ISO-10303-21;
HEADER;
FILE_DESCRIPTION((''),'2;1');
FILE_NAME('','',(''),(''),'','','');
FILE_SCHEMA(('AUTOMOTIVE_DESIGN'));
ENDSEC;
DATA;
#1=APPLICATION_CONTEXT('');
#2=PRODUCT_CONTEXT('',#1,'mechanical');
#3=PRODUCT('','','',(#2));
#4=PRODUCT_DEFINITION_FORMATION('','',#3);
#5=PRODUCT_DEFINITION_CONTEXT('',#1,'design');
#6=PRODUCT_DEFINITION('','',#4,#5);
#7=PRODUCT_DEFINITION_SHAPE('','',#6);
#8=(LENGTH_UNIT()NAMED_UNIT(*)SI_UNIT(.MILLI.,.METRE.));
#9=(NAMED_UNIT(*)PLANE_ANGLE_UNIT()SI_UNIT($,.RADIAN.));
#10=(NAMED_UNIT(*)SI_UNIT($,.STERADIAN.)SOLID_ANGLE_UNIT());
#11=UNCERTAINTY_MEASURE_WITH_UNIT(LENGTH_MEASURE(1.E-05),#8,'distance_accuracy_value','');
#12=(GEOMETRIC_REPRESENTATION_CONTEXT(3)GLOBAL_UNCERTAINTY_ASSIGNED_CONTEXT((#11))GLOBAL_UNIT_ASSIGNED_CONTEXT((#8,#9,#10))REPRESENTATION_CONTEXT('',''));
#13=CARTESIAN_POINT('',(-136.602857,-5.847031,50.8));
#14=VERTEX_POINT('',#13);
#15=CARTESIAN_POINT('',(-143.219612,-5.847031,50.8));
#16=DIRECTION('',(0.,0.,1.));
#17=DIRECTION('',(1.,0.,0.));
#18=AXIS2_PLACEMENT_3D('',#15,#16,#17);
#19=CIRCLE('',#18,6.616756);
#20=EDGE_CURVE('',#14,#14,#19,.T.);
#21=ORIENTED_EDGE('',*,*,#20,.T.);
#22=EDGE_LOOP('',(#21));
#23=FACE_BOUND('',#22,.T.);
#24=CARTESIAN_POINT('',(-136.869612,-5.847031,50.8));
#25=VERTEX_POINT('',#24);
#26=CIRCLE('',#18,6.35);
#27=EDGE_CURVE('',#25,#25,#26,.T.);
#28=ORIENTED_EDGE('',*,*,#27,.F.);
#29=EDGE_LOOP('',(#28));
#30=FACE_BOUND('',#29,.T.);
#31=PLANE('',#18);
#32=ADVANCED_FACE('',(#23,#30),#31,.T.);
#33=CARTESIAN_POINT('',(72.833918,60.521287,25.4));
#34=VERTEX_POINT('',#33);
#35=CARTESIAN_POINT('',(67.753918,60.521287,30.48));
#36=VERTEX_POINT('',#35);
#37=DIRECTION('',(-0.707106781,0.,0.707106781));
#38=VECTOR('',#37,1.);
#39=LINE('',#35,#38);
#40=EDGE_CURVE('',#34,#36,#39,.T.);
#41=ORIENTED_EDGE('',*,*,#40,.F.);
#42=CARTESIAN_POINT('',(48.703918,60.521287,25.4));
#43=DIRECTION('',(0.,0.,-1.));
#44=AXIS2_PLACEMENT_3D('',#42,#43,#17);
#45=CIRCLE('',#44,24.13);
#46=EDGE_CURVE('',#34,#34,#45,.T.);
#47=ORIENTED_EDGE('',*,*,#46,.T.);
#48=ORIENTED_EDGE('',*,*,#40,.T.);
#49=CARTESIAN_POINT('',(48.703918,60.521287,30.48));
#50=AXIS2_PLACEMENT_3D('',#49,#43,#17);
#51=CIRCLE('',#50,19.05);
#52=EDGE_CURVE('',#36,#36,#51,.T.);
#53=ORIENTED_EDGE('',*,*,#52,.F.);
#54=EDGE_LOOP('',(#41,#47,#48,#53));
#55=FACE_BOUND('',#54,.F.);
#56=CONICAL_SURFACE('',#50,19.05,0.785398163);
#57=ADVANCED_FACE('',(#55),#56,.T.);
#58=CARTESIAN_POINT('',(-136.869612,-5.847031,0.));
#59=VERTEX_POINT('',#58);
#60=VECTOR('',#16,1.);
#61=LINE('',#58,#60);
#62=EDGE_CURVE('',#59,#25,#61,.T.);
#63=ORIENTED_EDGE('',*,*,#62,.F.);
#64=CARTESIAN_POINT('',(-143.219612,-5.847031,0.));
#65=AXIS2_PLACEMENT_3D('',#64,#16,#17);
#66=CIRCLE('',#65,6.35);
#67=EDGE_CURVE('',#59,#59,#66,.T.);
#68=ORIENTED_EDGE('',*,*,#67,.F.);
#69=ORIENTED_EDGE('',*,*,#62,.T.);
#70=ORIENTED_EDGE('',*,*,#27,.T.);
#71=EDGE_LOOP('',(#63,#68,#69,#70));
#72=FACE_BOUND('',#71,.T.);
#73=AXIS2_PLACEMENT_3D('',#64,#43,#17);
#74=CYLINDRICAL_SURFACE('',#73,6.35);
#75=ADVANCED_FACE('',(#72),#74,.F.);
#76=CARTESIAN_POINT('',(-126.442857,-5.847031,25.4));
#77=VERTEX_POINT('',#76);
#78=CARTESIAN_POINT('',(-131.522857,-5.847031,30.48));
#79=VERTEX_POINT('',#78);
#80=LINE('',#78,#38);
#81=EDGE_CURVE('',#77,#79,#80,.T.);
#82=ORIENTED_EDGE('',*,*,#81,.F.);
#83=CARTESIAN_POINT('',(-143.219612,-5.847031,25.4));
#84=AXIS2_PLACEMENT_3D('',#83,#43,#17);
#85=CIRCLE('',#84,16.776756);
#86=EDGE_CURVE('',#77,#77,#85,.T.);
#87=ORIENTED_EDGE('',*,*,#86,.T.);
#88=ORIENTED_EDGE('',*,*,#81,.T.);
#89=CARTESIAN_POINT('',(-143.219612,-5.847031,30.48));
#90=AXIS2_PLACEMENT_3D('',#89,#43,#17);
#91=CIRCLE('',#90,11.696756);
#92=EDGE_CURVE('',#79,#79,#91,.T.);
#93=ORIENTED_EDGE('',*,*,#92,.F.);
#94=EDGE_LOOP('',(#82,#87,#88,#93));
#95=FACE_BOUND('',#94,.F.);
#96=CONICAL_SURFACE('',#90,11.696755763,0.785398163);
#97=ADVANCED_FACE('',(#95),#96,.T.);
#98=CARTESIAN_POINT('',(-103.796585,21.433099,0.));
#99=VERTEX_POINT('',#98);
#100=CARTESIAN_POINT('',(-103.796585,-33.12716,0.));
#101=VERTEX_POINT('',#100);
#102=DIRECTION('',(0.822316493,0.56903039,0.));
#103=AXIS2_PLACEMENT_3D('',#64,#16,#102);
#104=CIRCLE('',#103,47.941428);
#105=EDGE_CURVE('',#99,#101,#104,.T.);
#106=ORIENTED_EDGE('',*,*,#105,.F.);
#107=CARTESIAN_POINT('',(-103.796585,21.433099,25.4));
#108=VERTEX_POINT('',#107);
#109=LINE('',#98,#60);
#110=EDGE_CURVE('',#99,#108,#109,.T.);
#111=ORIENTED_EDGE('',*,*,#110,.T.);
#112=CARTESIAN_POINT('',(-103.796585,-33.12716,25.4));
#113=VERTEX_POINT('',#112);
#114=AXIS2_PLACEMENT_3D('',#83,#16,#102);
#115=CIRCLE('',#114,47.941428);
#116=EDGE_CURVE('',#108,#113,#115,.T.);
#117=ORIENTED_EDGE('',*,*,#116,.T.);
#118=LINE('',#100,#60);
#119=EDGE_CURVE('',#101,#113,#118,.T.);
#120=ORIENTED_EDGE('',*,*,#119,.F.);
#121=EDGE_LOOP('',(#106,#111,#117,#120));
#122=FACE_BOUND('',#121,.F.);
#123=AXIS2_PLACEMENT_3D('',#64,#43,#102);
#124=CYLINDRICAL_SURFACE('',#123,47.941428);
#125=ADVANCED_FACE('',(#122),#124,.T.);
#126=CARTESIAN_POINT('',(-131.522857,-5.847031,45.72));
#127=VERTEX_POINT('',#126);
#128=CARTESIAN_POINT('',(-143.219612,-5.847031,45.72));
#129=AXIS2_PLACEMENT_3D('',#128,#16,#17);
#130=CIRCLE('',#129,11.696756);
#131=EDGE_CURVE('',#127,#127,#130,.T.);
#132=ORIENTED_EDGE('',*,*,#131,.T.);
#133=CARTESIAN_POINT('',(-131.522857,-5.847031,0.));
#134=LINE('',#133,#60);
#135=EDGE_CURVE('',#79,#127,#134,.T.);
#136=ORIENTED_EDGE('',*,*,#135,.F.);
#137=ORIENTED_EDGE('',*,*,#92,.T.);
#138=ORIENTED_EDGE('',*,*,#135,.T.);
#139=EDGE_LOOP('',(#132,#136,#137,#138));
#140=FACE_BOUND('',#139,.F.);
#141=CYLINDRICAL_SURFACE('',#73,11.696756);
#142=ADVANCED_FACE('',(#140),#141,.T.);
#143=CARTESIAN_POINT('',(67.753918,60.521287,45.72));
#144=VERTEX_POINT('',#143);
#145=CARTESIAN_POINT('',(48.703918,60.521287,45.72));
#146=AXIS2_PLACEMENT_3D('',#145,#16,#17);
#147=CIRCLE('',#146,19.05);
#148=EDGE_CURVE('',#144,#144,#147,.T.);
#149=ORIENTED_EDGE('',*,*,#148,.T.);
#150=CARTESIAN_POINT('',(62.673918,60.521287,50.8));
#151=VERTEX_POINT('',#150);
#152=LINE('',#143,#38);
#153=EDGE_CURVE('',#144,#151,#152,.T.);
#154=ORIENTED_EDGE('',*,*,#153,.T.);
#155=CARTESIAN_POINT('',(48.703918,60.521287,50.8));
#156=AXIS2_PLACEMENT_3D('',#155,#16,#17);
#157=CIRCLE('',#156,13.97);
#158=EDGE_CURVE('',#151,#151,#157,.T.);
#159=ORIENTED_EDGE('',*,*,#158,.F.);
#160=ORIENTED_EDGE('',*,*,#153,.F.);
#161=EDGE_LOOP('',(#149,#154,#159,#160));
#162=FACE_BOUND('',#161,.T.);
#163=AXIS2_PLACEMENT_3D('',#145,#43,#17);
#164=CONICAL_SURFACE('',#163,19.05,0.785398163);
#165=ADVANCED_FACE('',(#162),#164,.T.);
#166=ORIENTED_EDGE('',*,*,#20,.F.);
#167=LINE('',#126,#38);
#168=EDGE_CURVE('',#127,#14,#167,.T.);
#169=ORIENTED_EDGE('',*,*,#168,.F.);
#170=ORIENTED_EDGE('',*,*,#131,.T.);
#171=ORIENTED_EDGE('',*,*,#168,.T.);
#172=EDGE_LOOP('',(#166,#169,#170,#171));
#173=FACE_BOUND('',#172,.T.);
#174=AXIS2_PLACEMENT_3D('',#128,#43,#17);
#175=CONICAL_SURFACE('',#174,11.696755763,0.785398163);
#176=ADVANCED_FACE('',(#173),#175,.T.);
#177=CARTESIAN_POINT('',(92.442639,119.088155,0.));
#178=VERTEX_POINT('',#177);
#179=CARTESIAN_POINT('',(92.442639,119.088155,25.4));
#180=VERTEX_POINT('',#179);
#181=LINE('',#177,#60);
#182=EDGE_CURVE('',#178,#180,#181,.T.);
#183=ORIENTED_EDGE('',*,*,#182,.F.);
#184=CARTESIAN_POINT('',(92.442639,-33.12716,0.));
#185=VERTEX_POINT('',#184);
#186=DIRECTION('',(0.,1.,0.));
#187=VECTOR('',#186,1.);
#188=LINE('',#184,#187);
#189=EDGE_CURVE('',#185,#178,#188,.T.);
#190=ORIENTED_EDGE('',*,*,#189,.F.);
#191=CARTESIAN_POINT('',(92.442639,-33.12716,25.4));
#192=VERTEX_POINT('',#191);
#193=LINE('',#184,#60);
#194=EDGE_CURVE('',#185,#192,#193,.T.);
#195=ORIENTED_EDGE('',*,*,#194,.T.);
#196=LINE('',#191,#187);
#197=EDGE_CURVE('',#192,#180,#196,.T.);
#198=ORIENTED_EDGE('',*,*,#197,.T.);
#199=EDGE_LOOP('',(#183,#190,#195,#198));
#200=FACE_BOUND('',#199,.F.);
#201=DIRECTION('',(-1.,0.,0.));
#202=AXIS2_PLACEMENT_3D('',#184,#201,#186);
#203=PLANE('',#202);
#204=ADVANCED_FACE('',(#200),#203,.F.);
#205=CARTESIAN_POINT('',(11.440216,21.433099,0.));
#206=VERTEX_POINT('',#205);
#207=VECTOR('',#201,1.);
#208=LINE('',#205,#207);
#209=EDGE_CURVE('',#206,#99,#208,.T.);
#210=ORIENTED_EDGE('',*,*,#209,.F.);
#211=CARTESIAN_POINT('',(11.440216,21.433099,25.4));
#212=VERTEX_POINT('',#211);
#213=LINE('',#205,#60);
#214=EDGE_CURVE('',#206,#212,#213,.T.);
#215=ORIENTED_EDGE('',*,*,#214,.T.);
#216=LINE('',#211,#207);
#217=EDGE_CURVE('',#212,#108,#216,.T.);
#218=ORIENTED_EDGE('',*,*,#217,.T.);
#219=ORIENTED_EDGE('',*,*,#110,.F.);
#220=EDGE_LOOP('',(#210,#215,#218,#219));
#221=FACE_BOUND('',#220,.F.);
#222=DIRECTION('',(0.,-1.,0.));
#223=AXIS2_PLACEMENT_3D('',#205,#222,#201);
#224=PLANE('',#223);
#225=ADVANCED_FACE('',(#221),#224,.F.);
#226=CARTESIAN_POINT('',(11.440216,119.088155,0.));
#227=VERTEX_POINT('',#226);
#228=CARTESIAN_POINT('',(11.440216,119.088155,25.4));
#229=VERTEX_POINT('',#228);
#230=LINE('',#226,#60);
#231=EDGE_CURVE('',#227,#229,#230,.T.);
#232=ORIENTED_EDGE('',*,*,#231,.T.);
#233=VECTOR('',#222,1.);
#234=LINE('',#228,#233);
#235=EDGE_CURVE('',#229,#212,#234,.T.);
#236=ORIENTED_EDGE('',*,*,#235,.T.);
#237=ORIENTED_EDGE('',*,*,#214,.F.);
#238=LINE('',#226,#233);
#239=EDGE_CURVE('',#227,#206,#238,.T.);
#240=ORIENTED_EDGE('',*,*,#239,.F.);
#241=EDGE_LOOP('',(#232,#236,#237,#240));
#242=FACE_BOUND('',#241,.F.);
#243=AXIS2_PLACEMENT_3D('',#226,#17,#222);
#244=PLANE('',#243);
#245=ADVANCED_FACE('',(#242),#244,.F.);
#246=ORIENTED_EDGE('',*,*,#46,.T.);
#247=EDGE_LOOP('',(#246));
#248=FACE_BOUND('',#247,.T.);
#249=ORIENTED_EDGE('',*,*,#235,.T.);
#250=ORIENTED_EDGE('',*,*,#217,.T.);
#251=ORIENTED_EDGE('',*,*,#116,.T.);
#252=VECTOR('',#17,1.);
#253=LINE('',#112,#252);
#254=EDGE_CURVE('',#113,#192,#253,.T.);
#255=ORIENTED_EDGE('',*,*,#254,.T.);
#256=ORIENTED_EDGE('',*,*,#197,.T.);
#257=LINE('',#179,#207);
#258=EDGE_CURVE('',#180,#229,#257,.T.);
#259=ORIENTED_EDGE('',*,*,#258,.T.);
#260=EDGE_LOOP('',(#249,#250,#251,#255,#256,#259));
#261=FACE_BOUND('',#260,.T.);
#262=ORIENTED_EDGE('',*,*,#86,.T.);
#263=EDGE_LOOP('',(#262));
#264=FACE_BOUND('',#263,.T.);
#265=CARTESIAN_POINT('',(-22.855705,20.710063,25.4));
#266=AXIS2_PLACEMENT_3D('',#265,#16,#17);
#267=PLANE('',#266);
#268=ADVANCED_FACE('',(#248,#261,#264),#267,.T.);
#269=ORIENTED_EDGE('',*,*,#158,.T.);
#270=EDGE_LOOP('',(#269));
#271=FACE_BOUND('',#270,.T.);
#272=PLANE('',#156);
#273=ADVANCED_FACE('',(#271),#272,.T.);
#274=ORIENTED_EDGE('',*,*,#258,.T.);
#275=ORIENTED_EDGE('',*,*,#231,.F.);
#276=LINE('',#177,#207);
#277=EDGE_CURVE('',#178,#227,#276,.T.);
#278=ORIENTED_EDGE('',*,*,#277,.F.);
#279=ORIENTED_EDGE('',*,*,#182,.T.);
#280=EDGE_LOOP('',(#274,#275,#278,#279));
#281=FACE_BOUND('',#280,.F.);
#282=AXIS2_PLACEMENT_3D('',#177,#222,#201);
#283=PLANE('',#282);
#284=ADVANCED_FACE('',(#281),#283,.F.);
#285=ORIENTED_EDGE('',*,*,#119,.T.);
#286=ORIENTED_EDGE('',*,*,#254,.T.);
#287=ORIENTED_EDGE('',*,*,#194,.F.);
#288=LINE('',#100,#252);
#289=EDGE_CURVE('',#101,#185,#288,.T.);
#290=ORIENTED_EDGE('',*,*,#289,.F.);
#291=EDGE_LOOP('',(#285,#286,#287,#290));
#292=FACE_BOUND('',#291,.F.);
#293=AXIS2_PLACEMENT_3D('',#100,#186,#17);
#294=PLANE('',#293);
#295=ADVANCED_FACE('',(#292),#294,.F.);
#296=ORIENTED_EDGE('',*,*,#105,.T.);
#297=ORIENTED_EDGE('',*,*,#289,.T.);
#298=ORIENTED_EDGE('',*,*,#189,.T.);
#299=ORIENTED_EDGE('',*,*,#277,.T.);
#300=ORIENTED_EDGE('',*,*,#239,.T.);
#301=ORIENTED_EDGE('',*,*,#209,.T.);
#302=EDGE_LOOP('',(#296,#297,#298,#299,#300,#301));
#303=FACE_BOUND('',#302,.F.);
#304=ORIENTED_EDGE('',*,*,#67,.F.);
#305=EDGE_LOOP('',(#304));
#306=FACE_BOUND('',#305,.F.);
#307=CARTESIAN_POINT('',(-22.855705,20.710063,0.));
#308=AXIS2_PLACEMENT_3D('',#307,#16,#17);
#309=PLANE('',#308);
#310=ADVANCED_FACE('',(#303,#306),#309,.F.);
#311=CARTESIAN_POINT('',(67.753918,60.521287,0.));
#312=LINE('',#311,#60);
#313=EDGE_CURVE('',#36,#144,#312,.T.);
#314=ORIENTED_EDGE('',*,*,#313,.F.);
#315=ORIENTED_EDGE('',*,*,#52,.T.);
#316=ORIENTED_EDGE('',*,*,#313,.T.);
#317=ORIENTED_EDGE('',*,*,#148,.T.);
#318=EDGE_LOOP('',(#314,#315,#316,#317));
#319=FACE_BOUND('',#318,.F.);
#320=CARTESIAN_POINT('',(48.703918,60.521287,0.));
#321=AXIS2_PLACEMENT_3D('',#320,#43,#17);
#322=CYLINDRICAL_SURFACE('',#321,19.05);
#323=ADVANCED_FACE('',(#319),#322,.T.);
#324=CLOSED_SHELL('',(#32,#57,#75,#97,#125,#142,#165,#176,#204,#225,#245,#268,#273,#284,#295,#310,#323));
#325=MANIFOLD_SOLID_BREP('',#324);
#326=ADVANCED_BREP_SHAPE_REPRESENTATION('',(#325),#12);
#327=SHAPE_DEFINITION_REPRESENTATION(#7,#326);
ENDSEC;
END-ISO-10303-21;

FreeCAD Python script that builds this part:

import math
import FreeCAD as App
import Part
import Sketcher
from FreeCAD import Vector
Q = App.Units.Quantity


def edges_at(feature, points):
    """Names of the edges that pass closest to the given points."""
    edges = feature.Shape.Edges
    near = lambda p: min(range(len(edges)), key=lambda i: edges[i].distToShape(Part.Vertex(*p))[0])
    return sorted({f"Edge{near(p) + 1}" for p in points})

doc = App.newDocument("Part")
body = doc.addObject("PartDesign::Body", "Body")

# Sketch on XY plane
sketch1 = body.newObject("Sketcher::SketchObject", "Sketch")
sketch1.AttachmentSupport = (doc.getObject("XY_Plane"), [""])
sketch1.MapMode = "FlatFace"
sketch1.addGeometry([
    Part.LineSegment(Vector(92, -33, 0), Vector(92, 119, 0)),  # 0
    Part.LineSegment(Vector(92, 119, 0), Vector(11, 119, 0)),  # 1
    Part.LineSegment(Vector(11, 119, 0), Vector(11, 21, 0)),  # 2
    Part.LineSegment(Vector(11, 21, 0), Vector(-104, 21, 0)),  # 3
    Part.ArcOfCircle(Part.Circle(Vector(-143, -6, 0), Vector(0, 0, 1), 48), math.radians(35), math.radians(325)),  # 4
    Part.LineSegment(Vector(-104, -33, 0), Vector(92, -33, 0)),  # 5
    Part.Circle(Vector(-143, -6, 0), Vector(0, 0, 1), 6),  # 6
], False)
sketch1.addConstraint([
    Sketcher.Constraint("Coincident", 0, 2, 1, 1),
    Sketcher.Constraint("Coincident", 1, 2, 2, 1),
    Sketcher.Constraint("Coincident", 2, 2, 3, 1),
    Sketcher.Constraint("Coincident", 3, 2, 4, 1),
    Sketcher.Constraint("Coincident", 4, 2, 5, 1),
    Sketcher.Constraint("Coincident", 5, 2, 0, 1),
    Sketcher.Constraint("Vertical", 0),
    Sketcher.Constraint("Horizontal", 1),
    Sketcher.Constraint("Vertical", 2),
    Sketcher.Constraint("Horizontal", 3),
    Sketcher.Constraint("Horizontal", 5),
    Sketcher.Constraint("Coincident", 6, 3, 4, 3),
    Sketcher.Constraint("Vertical", 3, 2, 4, 2),
    Sketcher.Constraint("Diameter", 6, Q("0.5 in")),
    Sketcher.Constraint("Radius", 4, 47.941428),
    Sketcher.Constraint("DistanceX", 3, 2, 3, 1, 115.236801),
    Sketcher.Constraint("DistanceY", -1, 1, 2, 2, 21.433099),
    Sketcher.Constraint("DistanceX", 1, 2, 1, 1, 81.002423),
    Sketcher.Constraint("DistanceY", 0, 1, 0, 2, 152.215315),
    Sketcher.Constraint("DistanceY", 2, 2, 2, 1, 97.655056),
    Sketcher.Constraint("DistanceX", -1, 1, 0, 2, 92.442639),
])
pad1 = body.newObject("PartDesign::Pad", "Pad")
pad1.Profile = sketch1
pad1.Length = Q("1 in")

# Sketch on XY plane
sketch2 = body.newObject("Sketcher::SketchObject", "Sketch001")
sketch2.AttachmentSupport = (doc.getObject("XY_Plane"), [""])
sketch2.MapMode = "FlatFace"
sketch2.addGeometry([
    Part.Circle(Vector(-143, -6, 0), Vector(0, 0, 1), 12),
    Part.Circle(Vector(-143, -6, 0), Vector(0, 0, 1), 6),
    Part.Circle(Vector(49, 61, 0), Vector(0, 0, 1), 19),
], False)
sketch2.addConstraint([
    Sketcher.Constraint("Coincident", 1, 3, 0, 3),
    Sketcher.Constraint("Diameter", 1, Q("0.5 in")),
    Sketcher.Constraint("Diameter", 2, Q("1.5 in")),
    Sketcher.Constraint("Diameter", 0, 23.393512),
    Sketcher.Constraint("DistanceY", 0, 3, -1, 1, 5.847031),
    Sketcher.Constraint("DistanceX", 0, 3, 2, 3, 191.92353),
    Sketcher.Constraint("DistanceX", 0, 3, -1, 1, 143.219612),
    Sketcher.Constraint("DistanceY", -1, 1, 2, 3, 60.521287),
])
pad2 = body.newObject("PartDesign::Pad", "Pad001")
pad2.Profile = sketch2
pad2.Length = Q("2 in")
doc.recompute()

chamfer = body.newObject("PartDesign::Chamfer", "Chamfer")
chamfer.Base = (pad2, edges_at(pad2, [
    (29.654, 60.521, 50.8),
    (-154.916, -5.847, 25.4),
    (-154.916, -5.847, 50.8),
    (29.654, 60.521, 25.4),
]))
chamfer.Size = Q("0.2 in")

doc.recompute()
